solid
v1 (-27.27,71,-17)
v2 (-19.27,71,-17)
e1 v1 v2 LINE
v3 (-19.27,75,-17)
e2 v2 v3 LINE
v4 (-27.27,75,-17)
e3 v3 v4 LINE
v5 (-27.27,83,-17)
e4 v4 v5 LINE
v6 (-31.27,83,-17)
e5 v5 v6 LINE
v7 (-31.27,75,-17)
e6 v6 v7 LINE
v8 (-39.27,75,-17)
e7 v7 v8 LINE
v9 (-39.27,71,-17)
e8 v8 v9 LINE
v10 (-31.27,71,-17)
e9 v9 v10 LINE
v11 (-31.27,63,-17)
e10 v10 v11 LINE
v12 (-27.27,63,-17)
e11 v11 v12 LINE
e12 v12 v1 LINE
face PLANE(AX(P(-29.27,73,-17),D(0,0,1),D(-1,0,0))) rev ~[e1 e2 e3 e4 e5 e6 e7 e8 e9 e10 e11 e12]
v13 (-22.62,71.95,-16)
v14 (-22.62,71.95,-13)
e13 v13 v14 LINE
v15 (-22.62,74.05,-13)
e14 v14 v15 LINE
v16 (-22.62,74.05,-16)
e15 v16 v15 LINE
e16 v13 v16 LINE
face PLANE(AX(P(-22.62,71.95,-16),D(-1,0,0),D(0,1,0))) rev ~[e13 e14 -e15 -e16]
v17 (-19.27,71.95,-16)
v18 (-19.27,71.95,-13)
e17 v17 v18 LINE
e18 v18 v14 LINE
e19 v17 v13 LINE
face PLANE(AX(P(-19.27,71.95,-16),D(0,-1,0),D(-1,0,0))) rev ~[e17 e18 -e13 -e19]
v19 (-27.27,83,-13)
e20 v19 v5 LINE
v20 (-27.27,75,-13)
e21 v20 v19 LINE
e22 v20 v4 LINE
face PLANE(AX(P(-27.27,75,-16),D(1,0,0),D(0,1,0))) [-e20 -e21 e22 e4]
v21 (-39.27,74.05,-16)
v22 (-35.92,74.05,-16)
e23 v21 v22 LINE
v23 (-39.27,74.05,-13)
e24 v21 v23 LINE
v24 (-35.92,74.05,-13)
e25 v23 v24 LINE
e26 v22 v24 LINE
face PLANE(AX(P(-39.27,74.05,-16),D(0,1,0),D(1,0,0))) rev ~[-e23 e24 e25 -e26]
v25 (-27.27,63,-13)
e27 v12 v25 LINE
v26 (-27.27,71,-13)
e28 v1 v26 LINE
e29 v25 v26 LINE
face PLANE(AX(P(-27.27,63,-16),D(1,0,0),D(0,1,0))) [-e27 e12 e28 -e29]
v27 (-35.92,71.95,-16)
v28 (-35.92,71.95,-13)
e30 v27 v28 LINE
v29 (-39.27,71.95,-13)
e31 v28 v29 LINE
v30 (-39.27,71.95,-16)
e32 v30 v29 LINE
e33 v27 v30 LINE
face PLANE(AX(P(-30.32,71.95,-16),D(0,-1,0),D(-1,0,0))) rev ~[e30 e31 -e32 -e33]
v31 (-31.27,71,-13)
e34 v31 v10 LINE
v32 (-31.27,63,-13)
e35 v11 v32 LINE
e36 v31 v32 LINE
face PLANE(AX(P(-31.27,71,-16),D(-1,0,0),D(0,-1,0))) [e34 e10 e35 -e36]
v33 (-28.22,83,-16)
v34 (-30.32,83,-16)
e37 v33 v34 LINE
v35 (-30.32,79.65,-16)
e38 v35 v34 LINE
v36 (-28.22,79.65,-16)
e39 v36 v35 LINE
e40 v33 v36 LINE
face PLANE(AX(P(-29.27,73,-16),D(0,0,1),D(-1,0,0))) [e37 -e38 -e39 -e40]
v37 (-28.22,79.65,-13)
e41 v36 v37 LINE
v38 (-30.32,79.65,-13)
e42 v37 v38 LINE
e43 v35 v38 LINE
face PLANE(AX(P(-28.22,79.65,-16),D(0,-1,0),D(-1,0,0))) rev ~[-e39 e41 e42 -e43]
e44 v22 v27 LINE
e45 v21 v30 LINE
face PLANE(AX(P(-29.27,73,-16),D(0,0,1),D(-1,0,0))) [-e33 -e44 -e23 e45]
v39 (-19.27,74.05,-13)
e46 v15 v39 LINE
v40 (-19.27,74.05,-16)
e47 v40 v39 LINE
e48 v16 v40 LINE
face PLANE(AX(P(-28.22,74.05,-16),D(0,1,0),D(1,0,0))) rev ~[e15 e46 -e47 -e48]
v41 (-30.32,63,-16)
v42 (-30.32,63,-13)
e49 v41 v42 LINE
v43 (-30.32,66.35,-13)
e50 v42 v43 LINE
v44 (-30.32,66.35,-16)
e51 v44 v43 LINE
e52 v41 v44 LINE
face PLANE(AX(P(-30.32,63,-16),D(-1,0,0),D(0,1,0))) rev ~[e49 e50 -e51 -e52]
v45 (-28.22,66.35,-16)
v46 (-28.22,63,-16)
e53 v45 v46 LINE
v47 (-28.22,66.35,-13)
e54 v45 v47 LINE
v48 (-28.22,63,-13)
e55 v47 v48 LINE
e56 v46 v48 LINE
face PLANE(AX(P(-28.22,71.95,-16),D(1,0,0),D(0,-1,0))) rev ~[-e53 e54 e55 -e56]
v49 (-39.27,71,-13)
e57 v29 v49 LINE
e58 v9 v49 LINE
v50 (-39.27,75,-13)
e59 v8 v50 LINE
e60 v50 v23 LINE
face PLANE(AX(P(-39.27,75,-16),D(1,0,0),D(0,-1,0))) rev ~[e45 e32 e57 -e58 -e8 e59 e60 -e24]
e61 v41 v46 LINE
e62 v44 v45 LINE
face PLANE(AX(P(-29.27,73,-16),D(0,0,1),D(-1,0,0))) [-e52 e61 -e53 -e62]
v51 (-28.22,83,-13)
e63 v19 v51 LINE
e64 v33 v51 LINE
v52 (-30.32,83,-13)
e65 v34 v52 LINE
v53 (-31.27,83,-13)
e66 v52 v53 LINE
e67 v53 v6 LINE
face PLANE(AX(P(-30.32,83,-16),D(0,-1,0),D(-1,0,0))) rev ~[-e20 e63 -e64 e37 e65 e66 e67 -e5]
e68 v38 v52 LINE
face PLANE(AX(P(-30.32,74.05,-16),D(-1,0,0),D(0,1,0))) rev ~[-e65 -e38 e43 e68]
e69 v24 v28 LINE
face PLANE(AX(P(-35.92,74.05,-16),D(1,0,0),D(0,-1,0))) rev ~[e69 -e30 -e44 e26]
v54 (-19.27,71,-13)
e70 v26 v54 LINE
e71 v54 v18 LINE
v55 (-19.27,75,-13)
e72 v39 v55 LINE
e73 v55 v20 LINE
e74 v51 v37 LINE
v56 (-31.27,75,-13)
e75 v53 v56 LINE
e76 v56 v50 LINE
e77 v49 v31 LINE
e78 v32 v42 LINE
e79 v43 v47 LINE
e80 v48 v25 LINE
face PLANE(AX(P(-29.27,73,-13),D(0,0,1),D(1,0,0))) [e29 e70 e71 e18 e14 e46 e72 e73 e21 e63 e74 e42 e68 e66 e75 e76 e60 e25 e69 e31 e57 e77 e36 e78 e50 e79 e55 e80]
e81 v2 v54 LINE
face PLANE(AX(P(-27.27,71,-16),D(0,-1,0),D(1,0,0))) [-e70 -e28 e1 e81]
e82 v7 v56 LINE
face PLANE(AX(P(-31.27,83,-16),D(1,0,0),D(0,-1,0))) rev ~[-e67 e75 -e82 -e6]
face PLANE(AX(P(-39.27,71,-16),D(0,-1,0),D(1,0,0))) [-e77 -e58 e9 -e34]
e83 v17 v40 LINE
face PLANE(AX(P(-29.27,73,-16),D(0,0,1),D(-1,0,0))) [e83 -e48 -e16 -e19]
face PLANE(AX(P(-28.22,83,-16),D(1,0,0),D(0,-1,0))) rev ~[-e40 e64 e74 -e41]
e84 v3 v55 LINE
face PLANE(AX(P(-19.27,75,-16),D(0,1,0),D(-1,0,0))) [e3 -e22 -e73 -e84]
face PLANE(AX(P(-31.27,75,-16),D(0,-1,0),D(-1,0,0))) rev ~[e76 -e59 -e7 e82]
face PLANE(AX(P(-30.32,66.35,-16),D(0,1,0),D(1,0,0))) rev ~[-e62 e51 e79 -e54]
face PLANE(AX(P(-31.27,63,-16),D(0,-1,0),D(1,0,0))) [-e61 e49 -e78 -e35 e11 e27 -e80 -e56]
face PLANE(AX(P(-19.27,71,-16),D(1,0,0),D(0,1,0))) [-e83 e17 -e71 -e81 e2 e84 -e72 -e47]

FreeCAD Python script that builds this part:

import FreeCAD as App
import Part
import Sketcher
Q = App.Units.Quantity


def add_polygon(sketch, points):
    """Adds a closed chain of lines whose ends are joined by coincident constraints."""
    first, n = sketch.GeometryCount, len(points)
    for a, b in zip(points, points[1:] + points[:1]):
        sketch.addGeometry(Part.LineSegment(App.Vector(*a, 0), App.Vector(*b, 0)), False)
    for i in range(n):
        sketch.addConstraint(Sketcher.Constraint("Coincident", first + i, 2, first + (i + 1) % n, 1))

doc = App.newDocument("Part")
params = doc.addObject("Spreadsheet::Sheet", "Params")
for row, (alias, value) in enumerate([
    ("sketch1_width", "8 mm"),
    ("sketch1_width2", "4 mm"),
    ("pad1_length", "1 mm"),
    ("sketch2_width", "8 mm"),
    ("sketch2_width2", "8.95 mm"),
    ("pad2_length", "3 mm"),
    ("sketch3_width", "5.6 mm"),
    ("sketch3_width2", "2.1 mm"),
    ("pad3_length", "3 mm"),
], start=1):
    params.set(f"A{row}", alias)
    params.set(f"B{row}", "=" + value)
    params.setAlias(f"B{row}", alias)

body = doc.addObject("PartDesign::Body", "Body")

sketch1 = body.newObject("Sketcher::SketchObject", "Sketch")
sketch1.AttachmentSupport = (doc.getObject("XY_Plane"), [""])
sketch1.MapMode = "FlatFace"
sketch1.AttachmentOffset = App.Placement(App.Vector(0, 0, -28), App.Rotation())
add_polygon(sketch1, [(-2, 10), (-2, 2), (-10, 2), (-10, -2), (-2, -2), (-2, -10), (2, -10), (2, -2), (10, -2), (10, 2), (2, 2), (2, 10)])
sketch1.addConstraint([
    Sketcher.Constraint("Vertical", 0),
    Sketcher.Constraint("Horizontal", 1),
    Sketcher.Constraint("Vertical", 2),
    Sketcher.Constraint("Horizontal", 3),
    Sketcher.Constraint("Vertical", 4),
    Sketcher.Constraint("Horizontal", 5),
    Sketcher.Constraint("Vertical", 6),
    Sketcher.Constraint("Horizontal", 7),
    Sketcher.Constraint("Vertical", 8),
    Sketcher.Constraint("Horizontal", 9),
    Sketcher.Constraint("Vertical", 10),
    Sketcher.Constraint("Horizontal", 11),
    Sketcher.Constraint("Symmetric", 0, 2, 6, 2, -1, 1),
    Sketcher.Constraint("Symmetric", 2, 2, 8, 2, -1, 1),
    Sketcher.Constraint("Symmetric", 4, 2, 10, 2, -1, 1),
    Sketcher.Constraint("Symmetric", 3, 2, 6, 2, -2),
    Sketcher.Constraint("Equal", 9, 0),
    Sketcher.Constraint("Equal", 11, 2),
    Sketcher.Constraint("DistanceX", 1, 2, 1, 1, Q("8 mm")),
    Sketcher.Constraint("DistanceX", 5, 1, 5, 2, Q("4 mm")),
])
sketch1.setExpression("Constraints[30]", "Params.sketch1_width")
sketch1.setExpression("Constraints[31]", "Params.sketch1_width2")
pad1 = body.newObject("PartDesign::Pad", "Pad")
pad1.Profile = sketch1
pad1.setExpression("Length", "Params.pad1_length")

sketch2 = body.newObject("Sketcher::SketchObject", "Sketch001")
sketch2.AttachmentSupport = (doc.getObject("XY_Plane"), [""])
sketch2.MapMode = "FlatFace"
sketch2.AttachmentOffset = App.Placement(App.Vector(0, 0, -28), App.Rotation())
add_polygon(sketch2, [(-2, -10), (-2, -2), (-10, -2), (-10, -1.1), (-1.1, -1.1), (-1.1, -10)])
add_polygon(sketch2, [(-10, 2), (-2, 2), (-2, 10), (-1.1, 10), (-1.1, 1.1), (-10, 1.1)])
add_polygon(sketch2, [(2, 10), (2, 2), (10, 2), (10, 1.1), (1.1, 1.1), (1.1, 10)])
add_polygon(sketch2, [(10, -2), (2, -2), (2, -10), (1.1, -10), (1.1, -1.1), (10, -1.1)])
sketch2.addConstraint([
    Sketcher.Constraint("Vertical", 0),
    Sketcher.Constraint("Horizontal", 1),
    Sketcher.Constraint("Vertical", 2),
    Sketcher.Constraint("Horizontal", 3),
    Sketcher.Constraint("Vertical", 4),
    Sketcher.Constraint("Horizontal", 5),
    Sketcher.Constraint("Horizontal", 6),
    Sketcher.Constraint("Vertical", 7),
    Sketcher.Constraint("Horizontal", 8),
    Sketcher.Constraint("Vertical", 9),
    Sketcher.Constraint("Horizontal", 10),
    Sketcher.Constraint("Vertical", 11),
    Sketcher.Constraint("Vertical", 12),
    Sketcher.Constraint("Horizontal", 13),
    Sketcher.Constraint("Vertical", 14),
    Sketcher.Constraint("Horizontal", 15),
    Sketcher.Constraint("Vertical", 16),
    Sketcher.Constraint("Horizontal", 17),
    Sketcher.Constraint("Horizontal", 18),
    Sketcher.Constraint("Vertical", 19),
    Sketcher.Constraint("Horizontal", 20),
    Sketcher.Constraint("Vertical", 21),
    Sketcher.Constraint("Horizontal", 22),
    Sketcher.Constraint("Vertical", 23),
    Sketcher.Constraint("Symmetric", 0, 2, 12, 2, -1, 1),
    Sketcher.Constraint("Symmetric", 2, 2, 14, 2, -1, 1),
    Sketcher.Constraint("Symmetric", 4, 2, 16, 2, -1, 1),
    Sketcher.Constraint("Symmetric", 6, 2, 18, 2, -1, 1),
    Sketcher.Constraint("Symmetric", 8, 2, 20, 2, -1, 1),
    Sketcher.Constraint("Symmetric", 10, 2, 22, 2, -1, 1),
    Sketcher.Constraint("Symmetric", 6, 2, 12, 2, -2),
    Sketcher.Constraint("Symmetric", 10, 2, 14, 2, -2),
    Sketcher.Constraint("Symmetric", 8, 2, 16, 2, -2),
    Sketcher.Constraint("Equal", 18, 0),
    Sketcher.Constraint("Equal", 20, 2),
    Sketcher.Constraint("DistanceX", 1, 2, 1, 1, Q("8 mm")),
    Sketcher.Constraint("DistanceX", 0, 2, -1, 1, Q("2 mm")),
    Sketcher.Constraint("DistanceY", 0, 2, -1, 1, Q("2 mm")),
    Sketcher.Constraint("DistanceX", 3, 1, 3, 2, Q("8.95 mm")),
])
sketch2.setExpression("Constraints[59]", "Params.sketch2_width")
sketch2.setExpression("Constraints[62]", "Params.sketch2_width2")
pad2 = body.newObject("PartDesign::Pad", "Pad001")
pad2.Profile = sketch2
pad2.setExpression("Length", "Params.pad2_length")
pad2.Reversed = True

sketch3 = body.newObject("Sketcher::SketchObject", "Sketch002")
sketch3.AttachmentSupport = (doc.getObject("XY_Plane"), [""])
sketch3.MapMode = "FlatFace"
sketch3.AttachmentOffset = App.Placement(App.Vector(0, 0, -28), App.Rotation())
add_polygon(sketch3, [(-6.7, -1.1), (-6.7, 1.1), (-1.1, 1.1), (-1.1, 6.7), (1.1, 6.7), (1.1, 1.1), (6.7, 1.1), (6.7, -1.1), (1.1, -1.1), (1.1, -6.7), (-1.1, -6.7), (-1.1, -1.1)])
sketch3.addConstraint([
    Sketcher.Constraint("Vertical", 0),
    Sketcher.Constraint("Horizontal", 1),
    Sketcher.Constraint("Vertical", 2),
    Sketcher.Constraint("Horizontal", 3),
    Sketcher.Constraint("Vertical", 4),
    Sketcher.Constraint("Horizontal", 5),
    Sketcher.Constraint("Vertical", 6),
    Sketcher.Constraint("Horizontal", 7),
    Sketcher.Constraint("Vertical", 8),
    Sketcher.Constraint("Horizontal", 9),
    Sketcher.Constraint("Vertical", 10),
    Sketcher.Constraint("Horizontal", 11),
    Sketcher.Constraint("Symmetric", 0, 2, 6, 2, -1, 1),
    Sketcher.Constraint("Symmetric", 2, 2, 8, 2, -1, 1),
    Sketcher.Constraint("Symmetric", 4, 2, 10, 2, -1, 1),
    Sketcher.Constraint("Symmetric", 1, 2, 4, 2, -2),
    Sketcher.Constraint("Equal", 9, 0),
    Sketcher.Constraint("Equal", 11, 2),
    Sketcher.Constraint("DistanceX", 1, 1, 1, 2, Q("5.6 mm")),
    Sketcher.Constraint("DistanceX", 3, 1, 3, 2, Q("2.1 mm")),
])
sketch3.setExpression("Constraints[30]", "Params.sketch3_width")
sketch3.setExpression("Constraints[31]", "Params.sketch3_width2")
pad3 = body.newObject("PartDesign::Pad", "Pad002")
pad3.Profile = sketch3
pad3.setExpression("Length", "Params.pad3_length")
pad3.Reversed = True
body2 = doc.addObject("PartDesign::Body", "Body001")
doc.recompute()

body.Placement = App.Placement(App.Vector(-29.27, 73, -44), App.Rotation(App.Vector(1, 0, 0), 180))
boolean = body2.newObject("PartDesign::Boolean", "Boolean")
boolean.Type = "Fuse"
boolean.addObjects([body])

doc.recompute()
